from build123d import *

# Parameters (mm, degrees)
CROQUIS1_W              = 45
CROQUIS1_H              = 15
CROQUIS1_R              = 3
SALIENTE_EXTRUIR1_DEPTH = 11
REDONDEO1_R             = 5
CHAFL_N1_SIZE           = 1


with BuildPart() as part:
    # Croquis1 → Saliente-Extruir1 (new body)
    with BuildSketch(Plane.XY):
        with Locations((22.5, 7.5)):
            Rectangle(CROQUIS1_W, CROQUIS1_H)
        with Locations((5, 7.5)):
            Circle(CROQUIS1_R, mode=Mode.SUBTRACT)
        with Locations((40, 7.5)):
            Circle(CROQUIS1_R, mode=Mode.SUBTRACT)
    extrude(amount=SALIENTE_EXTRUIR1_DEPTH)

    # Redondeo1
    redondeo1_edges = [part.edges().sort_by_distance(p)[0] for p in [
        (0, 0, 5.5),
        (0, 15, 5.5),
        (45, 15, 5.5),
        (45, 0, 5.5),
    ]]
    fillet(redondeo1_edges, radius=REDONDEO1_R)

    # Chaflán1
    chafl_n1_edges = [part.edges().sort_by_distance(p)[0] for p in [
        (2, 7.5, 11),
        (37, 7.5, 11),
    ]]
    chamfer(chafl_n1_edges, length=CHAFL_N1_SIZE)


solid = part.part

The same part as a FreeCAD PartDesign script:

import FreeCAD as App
import Part
import Sketcher
Q = App.Units.Quantity


def edges_at(feature, points):
    """Names of the edges that pass closest to the given points."""
    edges = feature.Shape.Edges
    near = lambda p: min(range(len(edges)), key=lambda i: edges[i].distToShape(Part.Vertex(*p))[0])
    return sorted({f"Edge{near(p) + 1}" for p in points})


def add_polygon(sketch, points):
    """Adds a closed chain of lines whose ends are joined by coincident constraints."""
    first, n = sketch.GeometryCount, len(points)
    for a, b in zip(points, points[1:] + points[:1]):
        sketch.addGeometry(Part.LineSegment(App.Vector(*a, 0), App.Vector(*b, 0)), False)
    for i in range(n):
        sketch.addConstraint(Sketcher.Constraint("Coincident", first + i, 2, first + (i + 1) % n, 1))

doc = App.newDocument("Part")
body = doc.addObject("PartDesign::Body", "Body")

# Sketch on XY plane
sketch1 = body.newObject("Sketcher::SketchObject", "Sketch")
sketch1.AttachmentSupport = (doc.getObject("XY_Plane"), [""])
sketch1.MapMode = "FlatFace"
add_polygon(sketch1, [(0, 15), (0, 0), (45, 0), (45, 15)])  # lines 0-3
sketch1.addGeometry(Part.Circle(App.Vector(5, 7.5, 0), App.Vector(0, 0, 1), 3), False)  # 4
sketch1.addGeometry(Part.Circle(App.Vector(40, 7.5, 0), App.Vector(0, 0, 1), 3), False)  # 5
sketch1.addConstraint([
    Sketcher.Constraint("Vertical", 0),
    Sketcher.Constraint("Horizontal", 1),
    Sketcher.Constraint("Vertical", 2),
    Sketcher.Constraint("Horizontal", 3),
    Sketcher.Constraint("Coincident", 0, 2, -1, 1),
    Sketcher.Constraint("Equal", 4, 5),
    Sketcher.Constraint("Horizontal", 4, 3, 5, 3),
    Sketcher.Constraint("Diameter", 4, Q("6 mm")),
    Sketcher.Constraint("DistanceX", 1, 1, 1, 2, Q("45 mm")),
    Sketcher.Constraint("DistanceY", 0, 2, 0, 1, Q("15 mm")),
    Sketcher.Constraint("DistanceX", -1, 1, 4, 3, Q("5 mm")),
    Sketcher.Constraint("DistanceX", -1, 1, 5, 3, Q("40 mm")),
    Sketcher.Constraint("DistanceY", -1, 1, 4, 3, Q("7.5 mm")),
])
pad1 = body.newObject("PartDesign::Pad", "Pad")
pad1.Profile = sketch1
pad1.Length = 11
doc.recompute()

fillet = body.newObject("PartDesign::Fillet", "Fillet")
fillet.Base = (pad1, edges_at(pad1, [
    (0, 0, 5.5),
    (0, 15, 5.5),
    (45, 15, 5.5),
    (45, 0, 5.5),
]))
fillet.Radius = 5
doc.recompute()

chamfer = body.newObject("PartDesign::Chamfer", "Chamfer")
chamfer.Base = (fillet, edges_at(fillet, [(2, 7.5, 11), (37, 7.5, 11)]))
chamfer.Size = 1

doc.recompute()
